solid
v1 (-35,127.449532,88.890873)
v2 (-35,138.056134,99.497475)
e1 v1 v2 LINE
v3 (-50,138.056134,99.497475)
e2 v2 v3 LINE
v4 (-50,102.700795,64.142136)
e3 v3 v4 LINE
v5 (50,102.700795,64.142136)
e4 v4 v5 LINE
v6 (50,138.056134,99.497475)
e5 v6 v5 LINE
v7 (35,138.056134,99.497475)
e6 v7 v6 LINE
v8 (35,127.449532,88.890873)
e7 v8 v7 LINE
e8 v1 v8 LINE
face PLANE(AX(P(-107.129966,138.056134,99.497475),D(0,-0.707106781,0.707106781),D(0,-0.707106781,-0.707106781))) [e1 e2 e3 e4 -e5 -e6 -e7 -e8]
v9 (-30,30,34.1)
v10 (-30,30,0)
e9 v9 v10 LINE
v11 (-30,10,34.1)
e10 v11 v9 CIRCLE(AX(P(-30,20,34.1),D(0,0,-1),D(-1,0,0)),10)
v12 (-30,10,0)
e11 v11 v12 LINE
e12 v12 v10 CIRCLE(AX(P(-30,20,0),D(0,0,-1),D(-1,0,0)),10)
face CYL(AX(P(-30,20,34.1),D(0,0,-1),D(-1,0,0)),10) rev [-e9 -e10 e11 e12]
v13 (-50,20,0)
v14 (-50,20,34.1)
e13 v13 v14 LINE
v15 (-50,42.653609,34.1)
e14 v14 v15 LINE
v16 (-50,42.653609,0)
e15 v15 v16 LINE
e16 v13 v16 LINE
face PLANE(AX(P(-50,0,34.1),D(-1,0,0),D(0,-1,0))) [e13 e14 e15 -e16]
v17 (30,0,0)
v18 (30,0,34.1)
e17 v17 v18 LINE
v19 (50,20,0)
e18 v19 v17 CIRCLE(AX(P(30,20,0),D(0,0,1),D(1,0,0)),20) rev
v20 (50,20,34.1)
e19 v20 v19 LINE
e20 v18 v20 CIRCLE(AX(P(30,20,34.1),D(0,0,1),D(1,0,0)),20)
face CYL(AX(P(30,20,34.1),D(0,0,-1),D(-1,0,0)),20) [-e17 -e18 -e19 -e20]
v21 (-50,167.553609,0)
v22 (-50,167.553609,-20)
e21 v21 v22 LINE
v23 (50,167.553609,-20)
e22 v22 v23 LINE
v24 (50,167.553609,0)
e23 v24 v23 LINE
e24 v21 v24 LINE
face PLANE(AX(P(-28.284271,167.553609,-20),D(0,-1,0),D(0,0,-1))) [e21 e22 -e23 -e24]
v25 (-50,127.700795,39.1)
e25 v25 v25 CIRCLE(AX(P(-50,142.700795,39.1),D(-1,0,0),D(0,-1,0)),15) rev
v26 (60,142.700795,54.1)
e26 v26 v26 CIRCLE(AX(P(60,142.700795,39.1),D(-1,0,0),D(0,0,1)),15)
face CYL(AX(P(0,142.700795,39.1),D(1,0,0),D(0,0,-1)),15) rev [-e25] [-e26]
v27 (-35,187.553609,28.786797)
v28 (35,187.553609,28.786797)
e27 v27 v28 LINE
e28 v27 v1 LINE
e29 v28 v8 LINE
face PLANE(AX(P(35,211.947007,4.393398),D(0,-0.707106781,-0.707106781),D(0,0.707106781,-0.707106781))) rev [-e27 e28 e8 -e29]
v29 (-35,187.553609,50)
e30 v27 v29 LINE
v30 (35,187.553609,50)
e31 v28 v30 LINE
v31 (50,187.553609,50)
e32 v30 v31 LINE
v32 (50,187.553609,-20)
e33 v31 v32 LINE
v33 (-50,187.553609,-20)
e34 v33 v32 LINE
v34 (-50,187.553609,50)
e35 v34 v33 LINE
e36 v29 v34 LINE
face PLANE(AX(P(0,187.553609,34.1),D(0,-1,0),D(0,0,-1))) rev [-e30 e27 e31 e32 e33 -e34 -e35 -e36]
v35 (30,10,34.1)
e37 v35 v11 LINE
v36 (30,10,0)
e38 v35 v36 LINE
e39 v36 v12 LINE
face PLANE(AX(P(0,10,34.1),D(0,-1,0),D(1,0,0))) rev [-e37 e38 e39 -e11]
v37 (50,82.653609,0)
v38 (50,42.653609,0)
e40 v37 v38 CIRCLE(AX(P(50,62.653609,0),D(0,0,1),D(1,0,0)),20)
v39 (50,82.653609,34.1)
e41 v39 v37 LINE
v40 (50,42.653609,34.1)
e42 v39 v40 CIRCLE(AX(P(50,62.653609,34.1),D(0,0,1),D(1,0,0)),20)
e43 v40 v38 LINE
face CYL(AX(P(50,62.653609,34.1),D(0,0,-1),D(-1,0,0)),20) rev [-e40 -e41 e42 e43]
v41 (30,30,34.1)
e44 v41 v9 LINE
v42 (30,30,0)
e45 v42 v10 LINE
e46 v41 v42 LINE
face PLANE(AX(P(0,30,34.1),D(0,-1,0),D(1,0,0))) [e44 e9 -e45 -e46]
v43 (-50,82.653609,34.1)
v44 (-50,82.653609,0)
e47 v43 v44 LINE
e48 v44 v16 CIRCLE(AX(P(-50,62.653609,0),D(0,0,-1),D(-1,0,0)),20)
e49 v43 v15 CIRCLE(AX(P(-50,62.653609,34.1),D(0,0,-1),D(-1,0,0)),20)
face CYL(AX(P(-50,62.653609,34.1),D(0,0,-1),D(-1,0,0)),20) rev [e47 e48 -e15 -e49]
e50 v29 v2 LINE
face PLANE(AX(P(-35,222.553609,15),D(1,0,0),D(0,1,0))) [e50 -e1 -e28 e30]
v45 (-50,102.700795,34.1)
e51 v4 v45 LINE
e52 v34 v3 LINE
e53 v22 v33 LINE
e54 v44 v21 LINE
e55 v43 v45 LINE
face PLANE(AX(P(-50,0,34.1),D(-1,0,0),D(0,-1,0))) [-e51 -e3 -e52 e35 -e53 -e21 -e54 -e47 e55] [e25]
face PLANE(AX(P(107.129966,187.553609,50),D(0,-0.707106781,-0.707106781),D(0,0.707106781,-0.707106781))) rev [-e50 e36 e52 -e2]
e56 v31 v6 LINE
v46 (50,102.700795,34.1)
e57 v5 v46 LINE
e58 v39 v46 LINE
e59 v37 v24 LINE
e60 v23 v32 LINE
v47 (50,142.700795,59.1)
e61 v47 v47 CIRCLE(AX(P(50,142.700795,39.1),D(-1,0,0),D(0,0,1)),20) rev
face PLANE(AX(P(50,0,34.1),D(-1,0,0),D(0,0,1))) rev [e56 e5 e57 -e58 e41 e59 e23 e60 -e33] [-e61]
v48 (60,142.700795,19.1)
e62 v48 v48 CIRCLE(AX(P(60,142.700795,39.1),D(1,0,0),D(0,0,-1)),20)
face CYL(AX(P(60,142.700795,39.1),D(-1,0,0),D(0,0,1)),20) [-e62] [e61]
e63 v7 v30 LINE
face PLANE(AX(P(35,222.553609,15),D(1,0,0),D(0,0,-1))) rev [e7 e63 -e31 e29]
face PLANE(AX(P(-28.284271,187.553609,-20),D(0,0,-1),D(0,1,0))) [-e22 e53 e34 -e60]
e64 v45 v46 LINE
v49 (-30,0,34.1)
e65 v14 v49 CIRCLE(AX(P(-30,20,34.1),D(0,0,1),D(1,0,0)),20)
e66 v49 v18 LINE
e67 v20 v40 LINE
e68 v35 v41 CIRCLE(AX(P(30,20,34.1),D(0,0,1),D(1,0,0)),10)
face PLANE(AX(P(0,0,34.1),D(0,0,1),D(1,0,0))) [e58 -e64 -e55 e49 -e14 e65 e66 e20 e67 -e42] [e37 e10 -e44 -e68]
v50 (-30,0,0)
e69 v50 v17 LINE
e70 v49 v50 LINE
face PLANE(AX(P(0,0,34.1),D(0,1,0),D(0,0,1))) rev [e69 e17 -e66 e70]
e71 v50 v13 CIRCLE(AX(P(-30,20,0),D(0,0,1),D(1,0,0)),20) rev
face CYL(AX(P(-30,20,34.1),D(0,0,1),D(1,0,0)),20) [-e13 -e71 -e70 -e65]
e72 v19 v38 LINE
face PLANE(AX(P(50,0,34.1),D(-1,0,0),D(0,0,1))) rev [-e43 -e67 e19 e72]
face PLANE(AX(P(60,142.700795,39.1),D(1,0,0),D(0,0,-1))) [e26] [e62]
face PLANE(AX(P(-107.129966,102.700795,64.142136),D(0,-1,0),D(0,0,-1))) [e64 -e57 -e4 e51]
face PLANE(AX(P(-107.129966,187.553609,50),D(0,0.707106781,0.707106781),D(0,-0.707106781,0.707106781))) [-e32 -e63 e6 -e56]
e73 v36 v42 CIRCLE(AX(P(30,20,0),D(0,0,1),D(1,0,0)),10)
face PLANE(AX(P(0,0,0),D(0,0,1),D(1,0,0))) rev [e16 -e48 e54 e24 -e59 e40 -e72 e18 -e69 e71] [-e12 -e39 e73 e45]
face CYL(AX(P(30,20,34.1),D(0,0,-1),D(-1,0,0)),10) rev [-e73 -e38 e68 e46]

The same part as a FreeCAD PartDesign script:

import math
import FreeCAD as App
import Part
import Sketcher
from FreeCAD import Vector
Q = App.Units.Quantity


def edges_at(feature, points):
    """Names of the edges that pass closest to the given points."""
    edges = feature.Shape.Edges
    near = lambda p: min(range(len(edges)), key=lambda i: edges[i].distToShape(Part.Vertex(*p))[0])
    return sorted({f"Edge{near(p) + 1}" for p in points})


def add_polygon(sketch, points):
    """Adds a closed chain of lines whose ends are joined by coincident constraints."""
    first, n = sketch.GeometryCount, len(points)
    for a, b in zip(points, points[1:] + points[:1]):
        sketch.addGeometry(Part.LineSegment(App.Vector(*a, 0), App.Vector(*b, 0)), False)
    for i in range(n):
        sketch.addConstraint(Sketcher.Constraint("Coincident", first + i, 2, first + (i + 1) % n, 1))

doc = App.newDocument("Part")
body = doc.addObject("PartDesign::Body", "Body")

sketch1 = body.newObject("Sketcher::SketchObject", "Sketch")
sketch1.AttachmentSupport = (doc.getObject("XY_Plane"), [""])
sketch1.MapMode = "FlatFace"
sketch1.addGeometry([
    Part.ArcOfCircle(Part.Circle(Vector(30, 20, 0), Vector(0, 0, 1), 10), math.radians(-90), math.radians(90)),
    Part.LineSegment(Vector(30, 10, 0), Vector(0, 10, 0)),
    Part.LineSegment(Vector(0, 10, 0), Vector(0, 0, 0)),
    Part.LineSegment(Vector(0, 0, 0), Vector(50, 0, 0)),
    Part.LineSegment(Vector(50, 0, 0), Vector(50, 43, 0)),
    Part.ArcOfCircle(Part.Circle(Vector(50, 63, 0), Vector(0, 0, 1), 20), math.radians(90), math.radians(270)),
    Part.LineSegment(Vector(50, 83, 0), Vector(50, 103, 0)),
    Part.LineSegment(Vector(50, 103, 0), Vector(0, 103, 0)),
    Part.LineSegment(Vector(0, 103, 0), Vector(0, 30, 0)),
    Part.LineSegment(Vector(0, 30, 0), Vector(30, 30, 0)),
], False)
sketch1.addConstraint([
    Sketcher.Constraint("Tangent", 0, 1, 1, 1),
    Sketcher.Constraint("Coincident", 1, 2, 2, 1),
    Sketcher.Constraint("Coincident", 2, 2, 3, 1),
    Sketcher.Constraint("Coincident", 3, 2, 4, 1),
    Sketcher.Constraint("Coincident", 4, 2, 5, 2),
    Sketcher.Constraint("Coincident", 5, 1, 6, 1),
    Sketcher.Constraint("Coincident", 6, 2, 7, 1),
    Sketcher.Constraint("Coincident", 7, 2, 8, 1),
    Sketcher.Constraint("Coincident", 8, 2, 9, 1),
    Sketcher.Constraint("Tangent", 9, 2, 0, 2),
    Sketcher.Constraint("Horizontal", 1),
    Sketcher.Constraint("Vertical", 2),
    Sketcher.Constraint("Horizontal", 3),
    Sketcher.Constraint("Vertical", 4),
    Sketcher.Constraint("Vertical", 6),
    Sketcher.Constraint("Horizontal", 7),
    Sketcher.Constraint("Vertical", 8),
    Sketcher.Constraint("Horizontal", 9),
    Sketcher.Constraint("Coincident", 2, 2, -1, 1),
    Sketcher.Constraint("PointOnObject", 7, 2, -2),
    Sketcher.Constraint("Vertical", 5, 3, 3, 2),
    Sketcher.Constraint("Vertical", 4, 2, 5, 1),
    Sketcher.Constraint("Radius", 0, Q("10 mm")),
    Sketcher.Constraint("Radius", 5, Q("20 mm")),
    Sketcher.Constraint("DistanceX", 1, 2, 1, 1, Q("30 mm")),
    Sketcher.Constraint("DistanceX", 3, 1, 3, 2, Q("50 mm")),
    Sketcher.Constraint("DistanceY", 2, 2, 2, 1, Q("10 mm")),
    Sketcher.Constraint("DistanceY", 6, 1, 6, 2, Q("20 mm")),
    Sketcher.Constraint("DistanceY", 4, 1, 4, 2, Q("42.653609 mm")),
])
pad1 = body.newObject("PartDesign::Pad", "Pad")
pad1.Profile = sketch1
pad1.Length = 34.1
doc.recompute()

fillet = body.newObject("PartDesign::Fillet", "Fillet")
fillet.Base = (pad1, edges_at(pad1, [(50, 0, 17.05)]))
fillet.Radius = 20

sketch2 = body.newObject("Sketcher::SketchObject", "Sketch001")
sketch2.AttachmentSupport = (doc.getObject("XY_Plane"), [""])
sketch2.MapMode = "FlatFace"
add_polygon(sketch2, [(0, 188), (0, 103), (50, 103), (50, 188)])
sketch2.addConstraint([
    Sketcher.Constraint("Vertical", 0),
    Sketcher.Constraint("Horizontal", 1),
    Sketcher.Constraint("Vertical", 2),
    Sketcher.Constraint("Horizontal", 3),
    Sketcher.Constraint("PointOnObject", 0, 2, -2),
    Sketcher.Constraint("DistanceX", 1, 1, 1, 2, Q("50 mm")),
    Sketcher.Constraint("DistanceY", 0, 2, 0, 1, Q("84.9 mm")),
    Sketcher.Constraint("DistanceY", -1, 1, 0, 2, Q("102.653609 mm")),
])
pad2 = body.newObject("PartDesign::Pad", "Pad001")
pad2.Profile = sketch2
pad2.Length = 34.1

sketch3 = body.newObject("Sketcher::SketchObject", "Sketch002")
sketch3.AttachmentSupport = (doc.getObject("YZ_Plane"), [""])
sketch3.MapMode = "FlatFace"
sketch3.AttachmentOffset = App.Placement(Vector(0, 0, 50), App.Rotation())
add_polygon(sketch3, [(188, 0), (168, 0), (168, -20), (188, -20)])
sketch3.addConstraint([
    Sketcher.Constraint("Horizontal", 0),
    Sketcher.Constraint("Vertical", 1),
    Sketcher.Constraint("Horizontal", 2),
    Sketcher.Constraint("Vertical", 3),
    Sketcher.Constraint("PointOnObject", 0, 2, -1),
    Sketcher.Constraint("Equal", 2, 1),
    Sketcher.Constraint("DistanceX", 0, 2, 0, 1, Q("20 mm")),
    Sketcher.Constraint("DistanceX", -1, 1, 0, 2, Q("167.553609 mm")),
])
pad3 = body.newObject("PartDesign::Pad", "Pad002")
pad3.Profile = sketch3
pad3.Length = 50
pad3.Reversed = True

sketch4 = body.newObject("Sketcher::SketchObject", "Sketch003")
sketch4.AttachmentSupport = (doc.getObject("YZ_Plane"), [""])
sketch4.MapMode = "FlatFace"
sketch4.AttachmentOffset = App.Placement(Vector(0, 0, 50), App.Rotation())
add_polygon(sketch4, [(188, 34), (188, 50), (138, 99), (103, 64), (103, 34)])
sketch4.addConstraint([
    Sketcher.Constraint("Vertical", 0),
    Sketcher.Constraint("Vertical", 3),
    Sketcher.Constraint("Horizontal", 4),
    Sketcher.Constraint("Perpendicular", 1, 2),
    Sketcher.Constraint("Angle", 1, Q("135 deg")),
    Sketcher.Constraint("Distance", 1, Q("70 mm")),
    Sketcher.Constraint("Distance", 2, Q("50 mm")),
    Sketcher.Constraint("DistanceY", 0, 1, 0, 2, Q("15.9 mm")),
    Sketcher.Constraint("DistanceY", -1, 1, 0, 2, Q("50 mm")),
    Sketcher.Constraint("DistanceX", -1, 1, 0, 2, Q("187.553609 mm")),
])
pad4 = body.newObject("PartDesign::Pad", "Pad003")
pad4.Profile = sketch4
pad4.Length = 50
pad4.Reversed = True

sketch5 = body.newObject("Sketcher::SketchObject", "Sketch004")
sketch5.AttachmentSupport = (doc.getObject("YZ_Plane"), [""])
sketch5.MapMode = "FlatFace"
sketch5.AttachmentOffset = App.Placement(Vector(0, 0, 50), App.Rotation())
sketch5.addGeometry(Part.Circle(Vector(143, 39, 0), Vector(0, 0, 1), 15), False)
sketch5.addConstraint([
    Sketcher.Constraint("Diameter", 0, Q("30 mm")),
    Sketcher.Constraint("DistanceY", -1, 1, 0, 3, Q("39.1 mm")),
    Sketcher.Constraint("DistanceX", -1, 1, 0, 3, Q("142.700795 mm")),
])
pocket1 = body.newObject("PartDesign::Pocket", "Pocket")
pocket1.Profile = sketch5
pocket1.Length = 438.238942
pocket1.Midplane = True

sketch6 = body.newObject("Sketcher::SketchObject", "Sketch005")
sketch6.Placement = App.Placement(Vector(0, 19.27933, -19.27933), App.Rotation(Vector(1, 0, 0), Vector(0, 0.707106781, 0.707106781), Vector(0, -0.707106781, 0.707106781), "ZXY"))
add_polygon(sketch6, [(0, 168), (0, 153), (35, 153), (35, 168)])
sketch6.addConstraint([
    Sketcher.Constraint("Vertical", 0),
    Sketcher.Constraint("Horizontal", 1),
    Sketcher.Constraint("Vertical", 2),
    Sketcher.Constraint("Horizontal", 3),
    Sketcher.Constraint("PointOnObject", 0, 2, -2),
    Sketcher.Constraint("DistanceX", 1, 1, 1, 2, Q("35 mm")),
    Sketcher.Constraint("DistanceY", 0, 2, 0, 1, Q("15 mm")),
    Sketcher.Constraint("DistanceY", -1, 1, 0, 2, Q("152.975767 mm")),
])
pocket2 = body.newObject("PartDesign::Pocket", "Pocket001")
pocket2.Profile = sketch6
pocket2.Type = "ThroughAll"
doc.recompute()

mirrored = body.newObject("PartDesign::Mirrored", "Mirrored")
mirrored.Originals = [pad1, pad2, pad3, pad4, pocket1, pocket2]
mirrored.MirrorPlane = (doc.getObject("YZ_Plane"), [""])
body.Tip = mirrored
doc.recompute()

fillet2 = body.newObject("PartDesign::Fillet", "Fillet001")
fillet2.Base = (mirrored, edges_at(mirrored, [(-50, 0, 17.05)]))
fillet2.Radius = 20

sketch7 = body.newObject("Sketcher::SketchObject", "Sketch006")
sketch7.AttachmentSupport = (doc.getObject("YZ_Plane"), [""])
sketch7.MapMode = "FlatFace"
sketch7.AttachmentOffset = App.Placement(Vector(0, 0, 50), App.Rotation())
sketch7.addGeometry(Part.Circle(Vector(143, 39, 0), Vector(0, 0, 1), 20), False)
sketch7.addConstraint([
    Sketcher.Constraint("Diameter", 0, Q("40 mm")),
    Sketcher.Constraint("DistanceY", -1, 1, 0, 3, Q("39.1 mm")),
    Sketcher.Constraint("DistanceX", -1, 1, 0, 3, Q("142.700795 mm")),
])
pad5 = body.newObject("PartDesign::Pad", "Pad004")
pad5.Profile = sketch7
pad5.Length = 10

sketch8 = body.newObject("Sketcher::SketchObject", "Sketch007")
sketch8.AttachmentSupport = (doc.getObject("YZ_Plane"), [""])
sketch8.MapMode = "FlatFace"
sketch8.AttachmentOffset = App.Placement(Vector(0, 0, 50), App.Rotation())
sketch8.addGeometry(Part.Circle(Vector(143, 39, 0), Vector(0, 0, 1), 15), False)
sketch8.addConstraint([
    Sketcher.Constraint("Diameter", 0, Q("30 mm")),
    Sketcher.Constraint("DistanceY", -1, 1, 0, 3, Q("39.1 mm")),
    Sketcher.Constraint("DistanceX", -1, 1, 0, 3, Q("142.700795 mm")),
])
pocket3 = body.newObject("PartDesign::Pocket", "Pocket002")
pocket3.Profile = sketch8
pocket3.Type = "ThroughAll"
pocket3.Midplane = True

doc.recompute()
